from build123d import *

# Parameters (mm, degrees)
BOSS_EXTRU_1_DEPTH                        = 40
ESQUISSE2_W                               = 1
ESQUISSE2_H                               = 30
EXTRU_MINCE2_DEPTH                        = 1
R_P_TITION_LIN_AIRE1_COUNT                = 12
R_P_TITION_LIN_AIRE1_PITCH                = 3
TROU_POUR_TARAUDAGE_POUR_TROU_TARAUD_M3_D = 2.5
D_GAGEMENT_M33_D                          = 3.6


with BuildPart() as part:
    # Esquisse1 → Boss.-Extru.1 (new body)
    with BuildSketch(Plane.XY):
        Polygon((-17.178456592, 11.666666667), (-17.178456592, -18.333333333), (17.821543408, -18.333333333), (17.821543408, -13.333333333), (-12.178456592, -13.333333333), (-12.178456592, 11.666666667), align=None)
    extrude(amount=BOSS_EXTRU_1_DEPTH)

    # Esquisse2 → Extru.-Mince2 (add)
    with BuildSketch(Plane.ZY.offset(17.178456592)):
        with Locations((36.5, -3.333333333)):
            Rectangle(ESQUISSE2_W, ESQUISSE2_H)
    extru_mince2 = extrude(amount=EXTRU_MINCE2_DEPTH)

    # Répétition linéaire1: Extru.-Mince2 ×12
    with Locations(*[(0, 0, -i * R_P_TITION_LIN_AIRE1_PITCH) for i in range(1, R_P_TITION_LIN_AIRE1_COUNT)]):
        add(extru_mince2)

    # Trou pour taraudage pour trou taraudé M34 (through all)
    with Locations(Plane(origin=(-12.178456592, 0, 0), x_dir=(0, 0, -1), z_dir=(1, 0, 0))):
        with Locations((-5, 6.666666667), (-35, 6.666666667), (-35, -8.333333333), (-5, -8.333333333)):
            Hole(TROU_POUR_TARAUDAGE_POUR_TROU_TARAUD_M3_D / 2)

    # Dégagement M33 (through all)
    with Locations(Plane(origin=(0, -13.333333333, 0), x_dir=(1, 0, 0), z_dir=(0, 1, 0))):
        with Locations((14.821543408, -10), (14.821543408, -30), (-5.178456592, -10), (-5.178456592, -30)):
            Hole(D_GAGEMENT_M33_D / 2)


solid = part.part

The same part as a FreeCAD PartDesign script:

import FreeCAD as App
import Part
import Sketcher


def add_polygon(sketch, points):
    """Adds a closed chain of lines whose ends are joined by coincident constraints."""
    first, n = sketch.GeometryCount, len(points)
    for a, b in zip(points, points[1:] + points[:1]):
        sketch.addGeometry(Part.LineSegment(App.Vector(*a, 0), App.Vector(*b, 0)), False)
    for i in range(n):
        sketch.addConstraint(Sketcher.Constraint("Coincident", first + i, 2, first + (i + 1) % n, 1))

doc = App.newDocument("Part")
params = doc.addObject("Spreadsheet::Sheet", "Params")
for row, (alias, value) in enumerate([
    ("sketch1_width", "35 mm"),
    ("sketch1_width2", "30 mm"),
    ("pad1_length", "40 mm"),
    ("sketch2_width", "30 mm"),
    ("sketch2_height", "1 mm"),
    ("pad2_length", "1 mm"),
    ("linearpattern_pitch", "3 mm"),
    ("sketch3_diameter", "2.5 mm"),
    ("hole_diameter", "2.5 mm"),
    ("sketch4_diameter", "3.6 mm"),
    ("hole2_diameter", "3.6 mm"),
], start=1):
    params.set(f"A{row}", alias)
    params.set(f"B{row}", "=" + value)
    params.setAlias(f"B{row}", alias)

body = doc.addObject("PartDesign::Body", "Body")

sketch1 = doc.addObject("Sketcher::SketchObject", "Sketch")
body.addObject(sketch1)
sketch1.AttachmentSupport = (doc.XY_Plane, [""])
sketch1.MapMode = "FlatFace"
add_polygon(sketch1, [(-17.2, 11.7), (-17.2, -18.3), (17.8, -18.3), (17.8, -13.3), (-12.2, -13.3), (-12.2, 11.7)])
sketch1.addConstraint(Sketcher.Constraint("Vertical", 0))
sketch1.addConstraint(Sketcher.Constraint("Horizontal", 1))
sketch1.addConstraint(Sketcher.Constraint("Vertical", 2))
sketch1.addConstraint(Sketcher.Constraint("Horizontal", 3))
sketch1.addConstraint(Sketcher.Constraint("Vertical", 4))
sketch1.addConstraint(Sketcher.Constraint("Horizontal", 5))
sketch1.addConstraint(Sketcher.Constraint("Equal", 3, 0))
sketch1.addConstraint(Sketcher.Constraint("Equal", 5, 2))
sketch1.addConstraint(Sketcher.Constraint("DistanceX", 1, 1, 1, 2, 35.0))
sketch1.addConstraint(Sketcher.Constraint("DistanceX", 3, 2, 3, 1, 30.0))
sketch1.addConstraint(Sketcher.Constraint("DistanceX", 0, 2, -1, 1, 17.178457))
sketch1.addConstraint(Sketcher.Constraint("DistanceY", 0, 2, -1, 1, 18.333333))
sketch1.setExpression("Constraints[14]", "Params.sketch1_width")
sketch1.setExpression("Constraints[15]", "Params.sketch1_width2")
pad1 = doc.addObject("PartDesign::Pad", "Pad")
body.addObject(pad1)
pad1.Profile = sketch1
pad1.setExpression("Length", "Params.pad1_length")

sketch2 = doc.addObject("Sketcher::SketchObject", "Sketch001")
body.addObject(sketch2)
sketch2.AttachmentSupport = (doc.YZ_Plane, [""])
sketch2.MapMode = "FlatFace"
sketch2.AttachmentOffset = App.Placement(App.Vector(0, 0, -17.178457), App.Rotation())
add_polygon(sketch2, [(11.7, 36), (-18.3, 36), (-18.3, 37), (11.7, 37)])
sketch2.addConstraint(Sketcher.Constraint("Horizontal", 0))
sketch2.addConstraint(Sketcher.Constraint("Vertical", 1))
sketch2.addConstraint(Sketcher.Constraint("Horizontal", 2))
sketch2.addConstraint(Sketcher.Constraint("Vertical", 3))
sketch2.addConstraint(Sketcher.Constraint("DistanceX", 0, 2, 0, 1, 30.0))
sketch2.addConstraint(Sketcher.Constraint("DistanceY", 1, 1, 1, 2, 1.0))
sketch2.addConstraint(Sketcher.Constraint("DistanceY", -1, 1, 0, 2, 36.0))
sketch2.addConstraint(Sketcher.Constraint("DistanceX", 0, 2, -1, 1, 18.333333))
sketch2.setExpression("Constraints[8]", "Params.sketch2_width")
sketch2.setExpression("Constraints[9]", "Params.sketch2_height")
pad2 = doc.addObject("PartDesign::Pad", "Pad001")
body.addObject(pad2)
pad2.Profile = sketch2
pad2.setExpression("Length", "Params.pad2_length")
pad2.Reversed = True
doc.recompute()

linearpattern = doc.addObject("PartDesign::LinearPattern", "LinearPattern")
body.addObject(linearpattern)
linearpattern.Originals = [pad2]
linearpattern.Direction = (doc.Z_Axis, [""])
linearpattern.Mode = "offset"
linearpattern.setExpression("Offset", "Params.linearpattern_pitch")
linearpattern.Occurrences = 12
linearpattern.Reversed = True
body.Tip = linearpattern

sketch3 = doc.addObject("Sketcher::SketchObject", "Sketch002")
body.addObject(sketch3)
sketch3.AttachmentSupport = (doc.YZ_Plane, [""])
sketch3.MapMode = "FlatFace"
sketch3.AttachmentOffset = App.Placement(App.Vector(0, 0, -12.178457), App.Rotation())
sketch3.addGeometry(Part.Circle(App.Vector(6.7, 5, 0), App.Vector(0, 0, 1), 1.2), False)
sketch3.addGeometry(Part.Circle(App.Vector(6.7, 35, 0), App.Vector(0, 0, 1), 1.2), False)
sketch3.addGeometry(Part.Circle(App.Vector(-8.3, 35, 0), App.Vector(0, 0, 1), 1.2), False)
sketch3.addGeometry(Part.Circle(App.Vector(-8.3, 5, 0), App.Vector(0, 0, 1), 1.2), False)
sketch3.addConstraint(Sketcher.Constraint("Equal", 0, 1))
sketch3.addConstraint(Sketcher.Constraint("Equal", 1, 2))
sketch3.addConstraint(Sketcher.Constraint("Equal", 2, 3))
sketch3.addConstraint(Sketcher.Constraint("Horizontal", 1, 3, 2, 3))
sketch3.addConstraint(Sketcher.Constraint("Horizontal", 0, 3, 3, 3))
sketch3.addConstraint(Sketcher.Constraint("Vertical", 0, 3, 1, 3))
sketch3.addConstraint(Sketcher.Constraint("Vertical", 2, 3, 3, 3))
sketch3.addConstraint(Sketcher.Constraint("Diameter", 0, 2.5))
sketch3.addConstraint(Sketcher.Constraint("DistanceY", -1, 1, 0, 3, 5.0))
sketch3.addConstraint(Sketcher.Constraint("DistanceY", -1, 1, 1, 3, 35.0))
sketch3.addConstraint(Sketcher.Constraint("DistanceX", 2, 3, 1, 3, 15.0))
sketch3.addConstraint(Sketcher.Constraint("DistanceX", -1, 1, 0, 3, 6.666667))
sketch3.setExpression("Constraints[7]", "Params.sketch3_diameter")
doc.recompute()
hole = doc.addObject("PartDesign::Hole", "Hole")
body.addObject(hole)
hole.Profile = sketch3
hole.ThreadType = "None"
hole.setExpression("Diameter", "Params.hole_diameter")
hole.DepthType = "ThroughAll"

sketch4 = doc.addObject("Sketcher::SketchObject", "Sketch003")
body.addObject(sketch4)
sketch4.AttachmentSupport = (doc.XZ_Plane, [""])
sketch4.MapMode = "FlatFace"
sketch4.AttachmentOffset = App.Placement(App.Vector(0, 0, 13.333333), App.Rotation())
sketch4.addGeometry(Part.Circle(App.Vector(14.8, 10, 0), App.Vector(0, 0, 1), 1.8), False)
sketch4.addGeometry(Part.Circle(App.Vector(14.8, 30, 0), App.Vector(0, 0, 1), 1.8), False)
sketch4.addGeometry(Part.Circle(App.Vector(-5.2, 10, 0), App.Vector(0, 0, 1), 1.8), False)
sketch4.addGeometry(Part.Circle(App.Vector(-5.2, 30, 0), App.Vector(0, 0, 1), 1.8), False)
sketch4.addConstraint(Sketcher.Constraint("Equal", 0, 1))
sketch4.addConstraint(Sketcher.Constraint("Equal", 1, 2))
sketch4.addConstraint(Sketcher.Constraint("Equal", 2, 3))
sketch4.addConstraint(Sketcher.Constraint("Horizontal", 0, 3, 2, 3))
sketch4.addConstraint(Sketcher.Constraint("Horizontal", 1, 3, 3, 3))
sketch4.addConstraint(Sketcher.Constraint("Vertical", 0, 3, 1, 3))
sketch4.addConstraint(Sketcher.Constraint("Vertical", 2, 3, 3, 3))
sketch4.addConstraint(Sketcher.Constraint("Diameter", 0, 3.6))
sketch4.addConstraint(Sketcher.Constraint("DistanceY", -1, 1, 0, 3, 10.0))
sketch4.addConstraint(Sketcher.Constraint("DistanceY", -1, 1, 1, 3, 30.0))
sketch4.addConstraint(Sketcher.Constraint("DistanceX", 2, 3, 0, 3, 20.0))
sketch4.addConstraint(Sketcher.Constraint("DistanceX", -1, 1, 0, 3, 14.821543))
sketch4.setExpression("Constraints[7]", "Params.sketch4_diameter")
doc.recompute()
hole2 = doc.addObject("PartDesign::Hole", "Hole001")
body.addObject(hole2)
hole2.Profile = sketch4
hole2.ThreadType = "None"
hole2.setExpression("Diameter", "Params.hole2_diameter")
hole2.DepthType = "ThroughAll"
hole2.Reversed = True

doc.recompute()
